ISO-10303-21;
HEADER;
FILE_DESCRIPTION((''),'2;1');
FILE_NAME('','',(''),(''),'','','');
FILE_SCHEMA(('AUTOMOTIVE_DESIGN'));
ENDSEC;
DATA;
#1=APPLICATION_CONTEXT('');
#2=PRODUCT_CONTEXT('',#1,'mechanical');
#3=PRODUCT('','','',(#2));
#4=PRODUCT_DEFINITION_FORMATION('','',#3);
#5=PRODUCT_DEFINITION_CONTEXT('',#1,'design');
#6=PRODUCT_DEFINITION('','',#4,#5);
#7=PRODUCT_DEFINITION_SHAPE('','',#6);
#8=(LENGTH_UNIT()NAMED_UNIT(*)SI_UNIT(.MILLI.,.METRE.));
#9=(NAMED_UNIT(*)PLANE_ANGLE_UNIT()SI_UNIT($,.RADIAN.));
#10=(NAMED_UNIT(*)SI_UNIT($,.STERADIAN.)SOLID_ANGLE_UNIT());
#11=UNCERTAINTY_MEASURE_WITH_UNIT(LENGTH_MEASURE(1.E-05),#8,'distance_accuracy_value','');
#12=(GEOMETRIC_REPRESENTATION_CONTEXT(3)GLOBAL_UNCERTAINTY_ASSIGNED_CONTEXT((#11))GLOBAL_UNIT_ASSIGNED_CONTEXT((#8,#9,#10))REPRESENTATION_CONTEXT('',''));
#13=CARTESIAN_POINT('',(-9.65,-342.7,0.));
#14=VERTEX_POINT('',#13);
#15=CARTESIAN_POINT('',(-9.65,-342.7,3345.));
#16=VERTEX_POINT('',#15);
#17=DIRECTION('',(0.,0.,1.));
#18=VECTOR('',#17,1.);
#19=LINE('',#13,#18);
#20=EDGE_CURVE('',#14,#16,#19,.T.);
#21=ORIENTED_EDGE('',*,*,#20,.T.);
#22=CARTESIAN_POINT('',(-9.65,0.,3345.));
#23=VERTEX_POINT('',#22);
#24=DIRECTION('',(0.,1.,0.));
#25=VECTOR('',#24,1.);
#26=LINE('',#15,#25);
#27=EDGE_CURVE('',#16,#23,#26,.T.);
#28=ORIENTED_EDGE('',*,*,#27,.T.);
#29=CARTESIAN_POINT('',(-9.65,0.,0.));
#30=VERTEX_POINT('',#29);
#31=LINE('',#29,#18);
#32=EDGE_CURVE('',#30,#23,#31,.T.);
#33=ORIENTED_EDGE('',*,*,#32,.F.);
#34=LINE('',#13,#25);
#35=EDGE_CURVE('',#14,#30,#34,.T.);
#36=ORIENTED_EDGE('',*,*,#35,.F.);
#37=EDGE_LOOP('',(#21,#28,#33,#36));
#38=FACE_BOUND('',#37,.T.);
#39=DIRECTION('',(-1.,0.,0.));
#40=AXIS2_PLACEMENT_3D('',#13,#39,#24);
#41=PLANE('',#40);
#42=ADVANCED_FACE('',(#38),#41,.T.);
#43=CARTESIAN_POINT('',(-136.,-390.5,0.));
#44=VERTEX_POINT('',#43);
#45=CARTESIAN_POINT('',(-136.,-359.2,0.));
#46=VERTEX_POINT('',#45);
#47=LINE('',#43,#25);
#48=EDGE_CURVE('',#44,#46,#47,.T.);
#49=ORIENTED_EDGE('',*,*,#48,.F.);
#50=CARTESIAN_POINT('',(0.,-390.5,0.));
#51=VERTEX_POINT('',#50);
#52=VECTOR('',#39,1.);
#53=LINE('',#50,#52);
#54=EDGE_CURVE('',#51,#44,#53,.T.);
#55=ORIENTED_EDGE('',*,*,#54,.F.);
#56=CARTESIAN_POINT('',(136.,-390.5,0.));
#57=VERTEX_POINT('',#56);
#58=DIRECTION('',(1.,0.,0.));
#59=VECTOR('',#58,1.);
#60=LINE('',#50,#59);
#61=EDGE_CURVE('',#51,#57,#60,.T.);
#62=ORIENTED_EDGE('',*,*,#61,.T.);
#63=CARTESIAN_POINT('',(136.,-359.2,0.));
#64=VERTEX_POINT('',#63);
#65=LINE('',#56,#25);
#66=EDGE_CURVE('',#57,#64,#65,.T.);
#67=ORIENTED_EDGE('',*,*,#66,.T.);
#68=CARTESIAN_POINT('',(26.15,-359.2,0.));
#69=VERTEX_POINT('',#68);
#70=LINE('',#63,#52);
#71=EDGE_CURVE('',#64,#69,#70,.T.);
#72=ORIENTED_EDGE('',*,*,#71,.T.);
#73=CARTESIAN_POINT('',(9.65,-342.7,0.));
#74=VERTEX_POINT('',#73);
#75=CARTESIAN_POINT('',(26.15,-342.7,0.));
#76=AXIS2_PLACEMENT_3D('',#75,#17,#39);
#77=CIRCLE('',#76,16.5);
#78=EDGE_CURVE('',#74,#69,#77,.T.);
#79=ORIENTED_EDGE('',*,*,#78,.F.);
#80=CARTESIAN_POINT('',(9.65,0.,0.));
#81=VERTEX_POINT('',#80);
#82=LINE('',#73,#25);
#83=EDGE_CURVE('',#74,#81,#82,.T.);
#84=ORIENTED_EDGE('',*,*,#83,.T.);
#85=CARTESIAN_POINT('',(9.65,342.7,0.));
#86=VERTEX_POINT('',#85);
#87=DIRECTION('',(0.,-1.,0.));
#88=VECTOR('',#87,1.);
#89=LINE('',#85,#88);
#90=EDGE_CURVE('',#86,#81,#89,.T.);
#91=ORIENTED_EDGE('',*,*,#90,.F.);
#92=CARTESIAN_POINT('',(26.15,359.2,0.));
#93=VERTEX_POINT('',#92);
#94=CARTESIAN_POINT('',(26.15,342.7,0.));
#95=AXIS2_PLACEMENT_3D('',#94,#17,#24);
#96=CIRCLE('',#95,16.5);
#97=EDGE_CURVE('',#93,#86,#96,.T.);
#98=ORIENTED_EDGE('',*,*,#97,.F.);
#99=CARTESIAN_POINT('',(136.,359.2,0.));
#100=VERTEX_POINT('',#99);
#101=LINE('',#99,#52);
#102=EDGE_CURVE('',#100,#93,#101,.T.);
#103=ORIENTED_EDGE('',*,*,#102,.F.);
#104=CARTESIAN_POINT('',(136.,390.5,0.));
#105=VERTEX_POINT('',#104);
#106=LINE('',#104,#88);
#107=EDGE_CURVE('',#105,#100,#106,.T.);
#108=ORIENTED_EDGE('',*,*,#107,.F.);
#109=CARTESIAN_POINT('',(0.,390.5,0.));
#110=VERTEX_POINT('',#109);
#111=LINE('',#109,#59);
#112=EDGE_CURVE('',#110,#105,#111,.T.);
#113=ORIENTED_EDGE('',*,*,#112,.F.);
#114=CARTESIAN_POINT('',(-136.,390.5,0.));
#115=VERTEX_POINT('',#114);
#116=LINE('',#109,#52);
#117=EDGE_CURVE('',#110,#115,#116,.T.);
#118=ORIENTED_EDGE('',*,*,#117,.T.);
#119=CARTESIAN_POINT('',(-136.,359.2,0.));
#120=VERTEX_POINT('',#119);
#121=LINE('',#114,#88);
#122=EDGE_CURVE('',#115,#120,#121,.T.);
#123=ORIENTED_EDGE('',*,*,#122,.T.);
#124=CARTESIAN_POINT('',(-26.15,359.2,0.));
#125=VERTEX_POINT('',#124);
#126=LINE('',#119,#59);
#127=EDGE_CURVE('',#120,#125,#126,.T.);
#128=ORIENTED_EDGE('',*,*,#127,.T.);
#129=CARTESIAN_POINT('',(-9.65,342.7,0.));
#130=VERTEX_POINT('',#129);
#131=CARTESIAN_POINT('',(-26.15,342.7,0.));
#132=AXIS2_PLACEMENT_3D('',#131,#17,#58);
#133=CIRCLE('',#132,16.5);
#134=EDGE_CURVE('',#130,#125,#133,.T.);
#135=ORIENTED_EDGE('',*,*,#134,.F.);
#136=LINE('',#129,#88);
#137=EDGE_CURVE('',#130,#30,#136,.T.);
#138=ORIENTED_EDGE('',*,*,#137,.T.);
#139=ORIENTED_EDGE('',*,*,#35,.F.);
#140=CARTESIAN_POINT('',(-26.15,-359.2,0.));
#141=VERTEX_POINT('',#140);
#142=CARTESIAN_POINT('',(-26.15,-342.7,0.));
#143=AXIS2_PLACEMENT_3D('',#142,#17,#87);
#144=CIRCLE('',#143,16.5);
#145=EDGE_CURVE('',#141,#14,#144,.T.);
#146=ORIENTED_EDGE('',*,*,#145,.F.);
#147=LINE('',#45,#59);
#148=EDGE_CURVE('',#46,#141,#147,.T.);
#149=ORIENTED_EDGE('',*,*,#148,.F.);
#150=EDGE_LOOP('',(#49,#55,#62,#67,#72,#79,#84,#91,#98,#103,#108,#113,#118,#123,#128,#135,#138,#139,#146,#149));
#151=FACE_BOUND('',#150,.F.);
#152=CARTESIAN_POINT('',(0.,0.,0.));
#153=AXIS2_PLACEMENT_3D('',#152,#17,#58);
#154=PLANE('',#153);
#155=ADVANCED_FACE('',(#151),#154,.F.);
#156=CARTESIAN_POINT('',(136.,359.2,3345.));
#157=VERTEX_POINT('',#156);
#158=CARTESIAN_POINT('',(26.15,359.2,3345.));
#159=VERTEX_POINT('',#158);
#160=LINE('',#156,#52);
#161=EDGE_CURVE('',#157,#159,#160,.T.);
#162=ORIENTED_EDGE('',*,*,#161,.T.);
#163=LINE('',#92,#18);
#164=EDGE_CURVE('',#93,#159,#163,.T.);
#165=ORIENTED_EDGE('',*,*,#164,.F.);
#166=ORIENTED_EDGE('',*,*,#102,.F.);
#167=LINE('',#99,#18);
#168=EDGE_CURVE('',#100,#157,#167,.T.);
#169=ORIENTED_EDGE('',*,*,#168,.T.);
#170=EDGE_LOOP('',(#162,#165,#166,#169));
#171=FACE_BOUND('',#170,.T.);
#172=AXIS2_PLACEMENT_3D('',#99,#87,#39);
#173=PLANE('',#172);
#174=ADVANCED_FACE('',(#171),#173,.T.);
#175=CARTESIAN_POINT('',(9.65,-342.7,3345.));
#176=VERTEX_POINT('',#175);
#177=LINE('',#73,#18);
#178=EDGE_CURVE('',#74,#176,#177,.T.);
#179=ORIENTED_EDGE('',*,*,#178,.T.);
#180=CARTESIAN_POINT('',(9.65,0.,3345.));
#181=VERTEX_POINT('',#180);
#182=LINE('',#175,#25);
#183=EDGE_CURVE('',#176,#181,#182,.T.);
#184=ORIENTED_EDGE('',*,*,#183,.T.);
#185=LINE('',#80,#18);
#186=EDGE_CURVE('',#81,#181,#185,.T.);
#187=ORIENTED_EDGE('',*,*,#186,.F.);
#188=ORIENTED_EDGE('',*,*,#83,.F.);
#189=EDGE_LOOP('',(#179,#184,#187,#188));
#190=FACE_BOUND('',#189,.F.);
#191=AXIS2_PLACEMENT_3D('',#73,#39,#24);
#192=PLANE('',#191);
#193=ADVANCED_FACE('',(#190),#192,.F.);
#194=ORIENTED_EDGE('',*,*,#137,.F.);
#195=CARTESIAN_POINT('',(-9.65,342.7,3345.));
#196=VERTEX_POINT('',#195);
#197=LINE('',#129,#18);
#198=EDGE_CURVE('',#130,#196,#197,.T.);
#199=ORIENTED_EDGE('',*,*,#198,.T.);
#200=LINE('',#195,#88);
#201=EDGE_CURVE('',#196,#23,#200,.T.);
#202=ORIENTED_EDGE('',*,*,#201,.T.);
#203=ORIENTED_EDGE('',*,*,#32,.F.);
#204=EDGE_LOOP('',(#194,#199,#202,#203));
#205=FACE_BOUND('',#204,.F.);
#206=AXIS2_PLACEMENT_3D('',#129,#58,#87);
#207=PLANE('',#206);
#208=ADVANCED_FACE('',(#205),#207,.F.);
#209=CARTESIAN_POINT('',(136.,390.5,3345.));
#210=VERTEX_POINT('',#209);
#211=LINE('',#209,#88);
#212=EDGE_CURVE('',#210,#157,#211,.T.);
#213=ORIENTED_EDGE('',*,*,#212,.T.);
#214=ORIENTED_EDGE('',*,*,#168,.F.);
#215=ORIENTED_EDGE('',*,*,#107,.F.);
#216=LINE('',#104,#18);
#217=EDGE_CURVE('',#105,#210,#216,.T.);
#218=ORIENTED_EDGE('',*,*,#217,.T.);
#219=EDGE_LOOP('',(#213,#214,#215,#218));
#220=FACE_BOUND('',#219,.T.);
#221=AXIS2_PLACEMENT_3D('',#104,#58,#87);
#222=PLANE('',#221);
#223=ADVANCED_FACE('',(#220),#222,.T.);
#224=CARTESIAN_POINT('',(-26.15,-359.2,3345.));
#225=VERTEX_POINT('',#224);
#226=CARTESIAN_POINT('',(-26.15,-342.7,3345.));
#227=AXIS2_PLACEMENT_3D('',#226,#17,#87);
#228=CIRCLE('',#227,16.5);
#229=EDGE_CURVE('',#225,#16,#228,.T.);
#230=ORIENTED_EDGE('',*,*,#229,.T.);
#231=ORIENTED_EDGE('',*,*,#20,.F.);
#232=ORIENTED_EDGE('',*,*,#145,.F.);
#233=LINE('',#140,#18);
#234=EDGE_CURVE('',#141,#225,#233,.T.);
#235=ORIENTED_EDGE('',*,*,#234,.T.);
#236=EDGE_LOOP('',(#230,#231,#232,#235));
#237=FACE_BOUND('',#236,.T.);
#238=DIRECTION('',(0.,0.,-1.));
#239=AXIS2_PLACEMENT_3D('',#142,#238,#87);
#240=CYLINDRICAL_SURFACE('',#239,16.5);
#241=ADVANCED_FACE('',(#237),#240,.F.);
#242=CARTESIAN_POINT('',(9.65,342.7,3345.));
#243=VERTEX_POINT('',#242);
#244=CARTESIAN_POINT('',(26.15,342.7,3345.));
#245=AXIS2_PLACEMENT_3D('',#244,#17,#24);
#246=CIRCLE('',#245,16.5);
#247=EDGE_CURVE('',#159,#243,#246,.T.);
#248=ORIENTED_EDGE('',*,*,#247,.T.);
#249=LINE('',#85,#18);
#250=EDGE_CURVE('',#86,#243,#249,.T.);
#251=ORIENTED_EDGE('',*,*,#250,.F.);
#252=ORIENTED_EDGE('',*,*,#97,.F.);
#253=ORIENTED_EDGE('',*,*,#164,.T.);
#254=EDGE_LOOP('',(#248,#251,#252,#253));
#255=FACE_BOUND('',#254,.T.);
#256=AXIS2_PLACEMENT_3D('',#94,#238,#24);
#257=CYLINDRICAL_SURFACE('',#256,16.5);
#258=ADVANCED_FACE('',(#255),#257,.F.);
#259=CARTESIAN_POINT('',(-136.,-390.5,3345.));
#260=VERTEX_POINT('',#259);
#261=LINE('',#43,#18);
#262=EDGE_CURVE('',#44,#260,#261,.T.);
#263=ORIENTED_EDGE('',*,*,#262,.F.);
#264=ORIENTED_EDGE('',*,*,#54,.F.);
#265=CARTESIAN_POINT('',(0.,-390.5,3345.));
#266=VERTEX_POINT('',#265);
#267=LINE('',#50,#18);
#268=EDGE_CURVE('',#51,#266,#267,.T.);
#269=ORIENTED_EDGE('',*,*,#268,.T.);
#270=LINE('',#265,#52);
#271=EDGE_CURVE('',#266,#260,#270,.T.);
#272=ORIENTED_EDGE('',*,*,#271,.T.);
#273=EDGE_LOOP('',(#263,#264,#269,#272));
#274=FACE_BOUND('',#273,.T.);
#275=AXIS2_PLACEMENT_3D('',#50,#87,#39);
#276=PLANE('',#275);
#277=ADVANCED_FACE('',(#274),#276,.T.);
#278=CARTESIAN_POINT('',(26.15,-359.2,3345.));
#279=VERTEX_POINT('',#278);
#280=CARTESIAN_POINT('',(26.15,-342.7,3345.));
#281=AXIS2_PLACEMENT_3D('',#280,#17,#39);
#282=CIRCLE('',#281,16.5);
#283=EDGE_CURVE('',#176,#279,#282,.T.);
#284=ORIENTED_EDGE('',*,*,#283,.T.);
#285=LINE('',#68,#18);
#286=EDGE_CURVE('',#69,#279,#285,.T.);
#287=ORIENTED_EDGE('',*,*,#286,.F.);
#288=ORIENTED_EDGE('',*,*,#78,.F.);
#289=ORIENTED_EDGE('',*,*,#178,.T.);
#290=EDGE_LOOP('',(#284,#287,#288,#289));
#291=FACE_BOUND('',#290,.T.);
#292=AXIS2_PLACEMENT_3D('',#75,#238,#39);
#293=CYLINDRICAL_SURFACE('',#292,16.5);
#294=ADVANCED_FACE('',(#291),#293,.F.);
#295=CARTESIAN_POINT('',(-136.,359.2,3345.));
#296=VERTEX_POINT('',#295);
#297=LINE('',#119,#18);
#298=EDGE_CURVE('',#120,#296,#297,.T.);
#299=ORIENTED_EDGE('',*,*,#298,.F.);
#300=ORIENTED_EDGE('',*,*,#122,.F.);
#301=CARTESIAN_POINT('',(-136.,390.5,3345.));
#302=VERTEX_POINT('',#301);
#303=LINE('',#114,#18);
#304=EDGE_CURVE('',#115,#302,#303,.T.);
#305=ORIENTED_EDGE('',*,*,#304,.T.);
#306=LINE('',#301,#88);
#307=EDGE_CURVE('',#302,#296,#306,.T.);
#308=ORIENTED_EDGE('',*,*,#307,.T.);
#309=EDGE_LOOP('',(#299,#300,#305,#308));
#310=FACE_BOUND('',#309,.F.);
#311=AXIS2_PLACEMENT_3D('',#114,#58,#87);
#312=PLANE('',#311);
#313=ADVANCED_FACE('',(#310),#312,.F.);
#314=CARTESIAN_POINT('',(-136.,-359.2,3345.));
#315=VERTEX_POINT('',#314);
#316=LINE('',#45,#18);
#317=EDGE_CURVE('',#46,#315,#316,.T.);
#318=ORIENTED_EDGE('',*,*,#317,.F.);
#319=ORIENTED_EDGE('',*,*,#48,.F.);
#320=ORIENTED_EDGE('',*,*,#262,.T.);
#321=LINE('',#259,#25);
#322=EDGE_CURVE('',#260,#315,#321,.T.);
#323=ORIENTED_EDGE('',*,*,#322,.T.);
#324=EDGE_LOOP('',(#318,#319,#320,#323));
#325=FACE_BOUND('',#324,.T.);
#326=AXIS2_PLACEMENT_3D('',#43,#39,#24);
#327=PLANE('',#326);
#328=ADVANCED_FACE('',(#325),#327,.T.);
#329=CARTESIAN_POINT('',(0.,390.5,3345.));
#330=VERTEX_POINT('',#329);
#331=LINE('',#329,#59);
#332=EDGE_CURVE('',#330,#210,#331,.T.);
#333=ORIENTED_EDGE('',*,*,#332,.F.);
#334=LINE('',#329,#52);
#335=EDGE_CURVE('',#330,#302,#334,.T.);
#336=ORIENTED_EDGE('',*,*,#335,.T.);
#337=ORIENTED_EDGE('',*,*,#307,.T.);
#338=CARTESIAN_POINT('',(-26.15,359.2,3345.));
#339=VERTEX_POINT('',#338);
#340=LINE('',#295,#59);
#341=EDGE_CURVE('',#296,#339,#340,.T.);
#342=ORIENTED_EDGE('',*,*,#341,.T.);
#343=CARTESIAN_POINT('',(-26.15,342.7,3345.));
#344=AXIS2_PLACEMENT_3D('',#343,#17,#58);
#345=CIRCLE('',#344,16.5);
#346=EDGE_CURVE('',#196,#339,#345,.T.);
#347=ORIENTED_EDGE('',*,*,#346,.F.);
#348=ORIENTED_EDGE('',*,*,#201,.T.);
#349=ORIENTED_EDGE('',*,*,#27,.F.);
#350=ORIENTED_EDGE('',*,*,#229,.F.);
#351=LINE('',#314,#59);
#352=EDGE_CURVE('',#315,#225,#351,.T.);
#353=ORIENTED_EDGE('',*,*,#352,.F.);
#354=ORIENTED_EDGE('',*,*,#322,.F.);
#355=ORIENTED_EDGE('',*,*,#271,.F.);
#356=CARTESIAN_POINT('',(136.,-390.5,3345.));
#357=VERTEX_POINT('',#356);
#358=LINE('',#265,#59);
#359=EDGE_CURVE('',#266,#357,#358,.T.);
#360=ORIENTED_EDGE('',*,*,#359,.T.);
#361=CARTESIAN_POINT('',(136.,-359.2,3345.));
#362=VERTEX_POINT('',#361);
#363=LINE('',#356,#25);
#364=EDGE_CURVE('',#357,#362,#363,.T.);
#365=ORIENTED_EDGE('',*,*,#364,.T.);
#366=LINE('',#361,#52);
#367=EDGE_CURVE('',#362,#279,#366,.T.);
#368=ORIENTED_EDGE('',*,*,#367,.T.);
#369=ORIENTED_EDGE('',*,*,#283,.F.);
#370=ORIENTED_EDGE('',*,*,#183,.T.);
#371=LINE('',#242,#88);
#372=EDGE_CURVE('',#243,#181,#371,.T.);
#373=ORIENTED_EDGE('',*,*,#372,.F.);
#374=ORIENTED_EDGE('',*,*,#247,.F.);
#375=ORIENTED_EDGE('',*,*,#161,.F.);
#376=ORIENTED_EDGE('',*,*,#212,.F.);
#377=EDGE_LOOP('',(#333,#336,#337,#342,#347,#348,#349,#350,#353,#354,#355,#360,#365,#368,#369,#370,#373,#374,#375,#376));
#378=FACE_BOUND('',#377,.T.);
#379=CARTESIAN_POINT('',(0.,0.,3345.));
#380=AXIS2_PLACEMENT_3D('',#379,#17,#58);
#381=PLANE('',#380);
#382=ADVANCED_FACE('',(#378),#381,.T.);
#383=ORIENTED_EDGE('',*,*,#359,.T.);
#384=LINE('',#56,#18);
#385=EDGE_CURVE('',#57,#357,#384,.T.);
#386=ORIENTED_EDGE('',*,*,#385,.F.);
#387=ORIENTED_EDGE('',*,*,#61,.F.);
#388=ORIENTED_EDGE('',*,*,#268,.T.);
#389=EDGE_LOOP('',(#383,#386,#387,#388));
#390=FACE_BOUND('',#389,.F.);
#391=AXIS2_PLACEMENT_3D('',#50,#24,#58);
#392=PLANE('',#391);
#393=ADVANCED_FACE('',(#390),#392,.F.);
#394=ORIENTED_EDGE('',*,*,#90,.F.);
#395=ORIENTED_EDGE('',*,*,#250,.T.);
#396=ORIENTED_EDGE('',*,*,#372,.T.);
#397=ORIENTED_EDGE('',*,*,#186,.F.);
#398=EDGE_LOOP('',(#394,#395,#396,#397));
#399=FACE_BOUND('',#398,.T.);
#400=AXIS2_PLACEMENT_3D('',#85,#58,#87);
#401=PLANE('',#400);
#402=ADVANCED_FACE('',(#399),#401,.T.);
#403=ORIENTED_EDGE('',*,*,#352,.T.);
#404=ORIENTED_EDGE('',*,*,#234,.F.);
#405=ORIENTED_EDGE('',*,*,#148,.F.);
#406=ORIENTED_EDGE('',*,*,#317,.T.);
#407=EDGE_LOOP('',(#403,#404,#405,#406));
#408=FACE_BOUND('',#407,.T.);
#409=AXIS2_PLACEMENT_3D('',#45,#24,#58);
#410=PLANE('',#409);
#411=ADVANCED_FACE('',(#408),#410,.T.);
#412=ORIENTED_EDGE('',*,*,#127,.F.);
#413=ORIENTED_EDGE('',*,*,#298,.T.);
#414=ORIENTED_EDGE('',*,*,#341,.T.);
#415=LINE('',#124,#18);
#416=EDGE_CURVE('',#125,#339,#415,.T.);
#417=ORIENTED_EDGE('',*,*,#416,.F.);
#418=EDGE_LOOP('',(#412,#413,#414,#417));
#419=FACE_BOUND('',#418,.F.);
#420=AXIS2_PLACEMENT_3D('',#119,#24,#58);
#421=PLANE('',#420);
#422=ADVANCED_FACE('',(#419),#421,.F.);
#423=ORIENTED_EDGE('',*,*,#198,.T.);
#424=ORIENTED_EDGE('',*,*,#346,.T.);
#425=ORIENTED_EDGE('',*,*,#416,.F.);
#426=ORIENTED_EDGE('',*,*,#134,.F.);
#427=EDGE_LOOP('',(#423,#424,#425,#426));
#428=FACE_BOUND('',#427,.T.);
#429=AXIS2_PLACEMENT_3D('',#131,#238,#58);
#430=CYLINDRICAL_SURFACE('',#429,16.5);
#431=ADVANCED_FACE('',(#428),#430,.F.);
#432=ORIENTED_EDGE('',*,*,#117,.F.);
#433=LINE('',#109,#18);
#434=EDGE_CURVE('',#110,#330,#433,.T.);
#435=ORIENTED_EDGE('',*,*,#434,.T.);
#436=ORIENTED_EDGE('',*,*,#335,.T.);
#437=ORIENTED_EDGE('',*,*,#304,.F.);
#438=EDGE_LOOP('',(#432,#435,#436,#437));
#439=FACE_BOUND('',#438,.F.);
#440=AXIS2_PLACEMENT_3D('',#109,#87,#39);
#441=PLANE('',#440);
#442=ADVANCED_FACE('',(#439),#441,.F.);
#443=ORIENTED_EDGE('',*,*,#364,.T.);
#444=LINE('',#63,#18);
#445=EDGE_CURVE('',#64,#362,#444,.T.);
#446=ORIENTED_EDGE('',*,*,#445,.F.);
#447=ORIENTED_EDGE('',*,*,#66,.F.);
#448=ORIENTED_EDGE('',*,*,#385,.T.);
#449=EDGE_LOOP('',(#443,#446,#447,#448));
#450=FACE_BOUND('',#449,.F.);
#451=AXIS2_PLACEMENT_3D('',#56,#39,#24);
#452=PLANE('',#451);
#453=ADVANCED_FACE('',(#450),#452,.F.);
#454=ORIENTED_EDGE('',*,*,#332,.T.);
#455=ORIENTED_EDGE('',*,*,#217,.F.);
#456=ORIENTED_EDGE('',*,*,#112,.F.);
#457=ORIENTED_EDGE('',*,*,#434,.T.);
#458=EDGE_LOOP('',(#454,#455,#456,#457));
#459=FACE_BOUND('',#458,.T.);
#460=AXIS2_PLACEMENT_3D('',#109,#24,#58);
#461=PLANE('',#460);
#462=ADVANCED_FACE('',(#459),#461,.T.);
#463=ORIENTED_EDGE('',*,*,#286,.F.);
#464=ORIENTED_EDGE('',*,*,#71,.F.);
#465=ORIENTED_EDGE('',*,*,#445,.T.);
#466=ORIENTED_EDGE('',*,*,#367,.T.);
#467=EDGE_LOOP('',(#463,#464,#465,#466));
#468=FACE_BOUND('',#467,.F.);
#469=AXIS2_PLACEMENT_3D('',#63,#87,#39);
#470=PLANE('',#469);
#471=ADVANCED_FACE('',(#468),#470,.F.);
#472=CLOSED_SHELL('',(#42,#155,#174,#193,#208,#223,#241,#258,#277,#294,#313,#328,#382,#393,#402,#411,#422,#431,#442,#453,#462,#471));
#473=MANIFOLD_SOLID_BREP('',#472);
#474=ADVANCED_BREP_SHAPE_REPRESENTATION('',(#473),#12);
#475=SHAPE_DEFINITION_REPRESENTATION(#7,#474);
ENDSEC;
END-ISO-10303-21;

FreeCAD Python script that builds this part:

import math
import FreeCAD as App
import Part
import Sketcher
from FreeCAD import Vector

doc = App.newDocument("Part")
body = doc.addObject("PartDesign::Body", "Body")

# Sketch on XY plane
sketch1 = body.newObject("Sketcher::SketchObject", "Sketch")
sketch1.AttachmentSupport = (doc.getObject("XY_Plane"), [""])
sketch1.MapMode = "FlatFace"
sketch1.addGeometry(Part.LineSegment(Vector(-136, -359, 0), Vector(-136, -390, 0)), False)
sketch1.addGeometry(Part.LineSegment(Vector(-136, -390, 0), Vector(136, -390, 0)), False)
sketch1.addGeometry(Part.LineSegment(Vector(136, -390, 0), Vector(136, -359, 0)), False)
sketch1.addGeometry(Part.LineSegment(Vector(136, -359, 0), Vector(26, -359, 0)), False)
sketch1.addGeometry(Part.ArcOfCircle(Part.Circle(Vector(26, -343, 0), Vector(0, 0, 1), 16), math.radians(180), math.radians(270)), False)
sketch1.addGeometry(Part.LineSegment(Vector(10, -343, 0), Vector(10, 343, 0)), False)
sketch1.addGeometry(Part.ArcOfCircle(Part.Circle(Vector(26, 343, 0), Vector(0, 0, 1), 16), math.radians(90), math.radians(180)), False)
sketch1.addGeometry(Part.LineSegment(Vector(26, 359, 0), Vector(136, 359, 0)), False)
sketch1.addGeometry(Part.LineSegment(Vector(136, 359, 0), Vector(136, 390, 0)), False)
sketch1.addGeometry(Part.LineSegment(Vector(136, 390, 0), Vector(-136, 390, 0)), False)
sketch1.addGeometry(Part.LineSegment(Vector(-136, 390, 0), Vector(-136, 359, 0)), False)
sketch1.addGeometry(Part.LineSegment(Vector(-136, 359, 0), Vector(-26, 359, 0)), False)
sketch1.addGeometry(Part.ArcOfCircle(Part.Circle(Vector(-26, 343, 0), Vector(0, 0, 1), 16), math.radians(0), math.radians(90)), False)
sketch1.addGeometry(Part.LineSegment(Vector(-10, 343, 0), Vector(-10, -343, 0)), False)
sketch1.addGeometry(Part.ArcOfCircle(Part.Circle(Vector(-26, -343, 0), Vector(0, 0, 1), 16), math.radians(-90), math.radians(0)), False)
sketch1.addGeometry(Part.LineSegment(Vector(-26, -359, 0), Vector(-136, -359, 0)), False)
sketch1.addConstraint(Sketcher.Constraint("Coincident", 0, 2, 1, 1))
sketch1.addConstraint(Sketcher.Constraint("Coincident", 1, 2, 2, 1))
sketch1.addConstraint(Sketcher.Constraint("Coincident", 2, 2, 3, 1))
sketch1.addConstraint(Sketcher.Constraint("Tangent", 3, 2, 4, 2))
sketch1.addConstraint(Sketcher.Constraint("Tangent", 4, 1, 5, 1))
sketch1.addConstraint(Sketcher.Constraint("Tangent", 5, 2, 6, 2))
sketch1.addConstraint(Sketcher.Constraint("Tangent", 6, 1, 7, 1))
sketch1.addConstraint(Sketcher.Constraint("Coincident", 7, 2, 8, 1))
sketch1.addConstraint(Sketcher.Constraint("Coincident", 8, 2, 9, 1))
sketch1.addConstraint(Sketcher.Constraint("Coincident", 9, 2, 10, 1))
sketch1.addConstraint(Sketcher.Constraint("Coincident", 10, 2, 11, 1))
sketch1.addConstraint(Sketcher.Constraint("Tangent", 11, 2, 12, 2))
sketch1.addConstraint(Sketcher.Constraint("Tangent", 12, 1, 13, 1))
sketch1.addConstraint(Sketcher.Constraint("Tangent", 13, 2, 14, 2))
sketch1.addConstraint(Sketcher.Constraint("Tangent", 14, 1, 15, 1))
sketch1.addConstraint(Sketcher.Constraint("Coincident", 15, 2, 0, 1))
sketch1.addConstraint(Sketcher.Constraint("Vertical", 0))
sketch1.addConstraint(Sketcher.Constraint("Horizontal", 1))
sketch1.addConstraint(Sketcher.Constraint("Vertical", 2))
sketch1.addConstraint(Sketcher.Constraint("Horizontal", 3))
sketch1.addConstraint(Sketcher.Constraint("Vertical", 5))
sketch1.addConstraint(Sketcher.Constraint("Horizontal", 7))
sketch1.addConstraint(Sketcher.Constraint("Vertical", 8))
sketch1.addConstraint(Sketcher.Constraint("Horizontal", 9))
sketch1.addConstraint(Sketcher.Constraint("Vertical", 10))
sketch1.addConstraint(Sketcher.Constraint("Horizontal", 11))
sketch1.addConstraint(Sketcher.Constraint("Vertical", 13))
sketch1.addConstraint(Sketcher.Constraint("Horizontal", 15))
sketch1.addConstraint(Sketcher.Constraint("Equal", 4, 6))
sketch1.addConstraint(Sketcher.Constraint("Equal", 6, 12))
sketch1.addConstraint(Sketcher.Constraint("Equal", 12, 14))
sketch1.addConstraint(Sketcher.Constraint("Symmetric", 4, 3, 12, 3, -1, 1))
sketch1.addConstraint(Sketcher.Constraint("Symmetric", 0, 2, 8, 2, -1, 1))
sketch1.addConstraint(Sketcher.Constraint("Symmetric", 7, 2, 10, 2, -2))
sketch1.addConstraint(Sketcher.Constraint("Symmetric", 2, 2, 15, 2, -2))
sketch1.addConstraint(Sketcher.Constraint("Radius", 4, 16.5))
sketch1.addConstraint(Sketcher.Constraint("DistanceY", 0, 2, 0, 1, 31.3))
sketch1.addConstraint(Sketcher.Constraint("DistanceX", 0, 2, -1, 1, 136.0))
sketch1.addConstraint(Sketcher.Constraint("DistanceY", 0, 2, -1, 1, 390.5))
sketch1.addConstraint(Sketcher.Constraint("DistanceX", -1, 1, 4, 1, 9.65))
pad1 = body.newObject("PartDesign::Pad", "Pad")
pad1.Profile = sketch1
pad1.Length = 3345

doc.recompute()
